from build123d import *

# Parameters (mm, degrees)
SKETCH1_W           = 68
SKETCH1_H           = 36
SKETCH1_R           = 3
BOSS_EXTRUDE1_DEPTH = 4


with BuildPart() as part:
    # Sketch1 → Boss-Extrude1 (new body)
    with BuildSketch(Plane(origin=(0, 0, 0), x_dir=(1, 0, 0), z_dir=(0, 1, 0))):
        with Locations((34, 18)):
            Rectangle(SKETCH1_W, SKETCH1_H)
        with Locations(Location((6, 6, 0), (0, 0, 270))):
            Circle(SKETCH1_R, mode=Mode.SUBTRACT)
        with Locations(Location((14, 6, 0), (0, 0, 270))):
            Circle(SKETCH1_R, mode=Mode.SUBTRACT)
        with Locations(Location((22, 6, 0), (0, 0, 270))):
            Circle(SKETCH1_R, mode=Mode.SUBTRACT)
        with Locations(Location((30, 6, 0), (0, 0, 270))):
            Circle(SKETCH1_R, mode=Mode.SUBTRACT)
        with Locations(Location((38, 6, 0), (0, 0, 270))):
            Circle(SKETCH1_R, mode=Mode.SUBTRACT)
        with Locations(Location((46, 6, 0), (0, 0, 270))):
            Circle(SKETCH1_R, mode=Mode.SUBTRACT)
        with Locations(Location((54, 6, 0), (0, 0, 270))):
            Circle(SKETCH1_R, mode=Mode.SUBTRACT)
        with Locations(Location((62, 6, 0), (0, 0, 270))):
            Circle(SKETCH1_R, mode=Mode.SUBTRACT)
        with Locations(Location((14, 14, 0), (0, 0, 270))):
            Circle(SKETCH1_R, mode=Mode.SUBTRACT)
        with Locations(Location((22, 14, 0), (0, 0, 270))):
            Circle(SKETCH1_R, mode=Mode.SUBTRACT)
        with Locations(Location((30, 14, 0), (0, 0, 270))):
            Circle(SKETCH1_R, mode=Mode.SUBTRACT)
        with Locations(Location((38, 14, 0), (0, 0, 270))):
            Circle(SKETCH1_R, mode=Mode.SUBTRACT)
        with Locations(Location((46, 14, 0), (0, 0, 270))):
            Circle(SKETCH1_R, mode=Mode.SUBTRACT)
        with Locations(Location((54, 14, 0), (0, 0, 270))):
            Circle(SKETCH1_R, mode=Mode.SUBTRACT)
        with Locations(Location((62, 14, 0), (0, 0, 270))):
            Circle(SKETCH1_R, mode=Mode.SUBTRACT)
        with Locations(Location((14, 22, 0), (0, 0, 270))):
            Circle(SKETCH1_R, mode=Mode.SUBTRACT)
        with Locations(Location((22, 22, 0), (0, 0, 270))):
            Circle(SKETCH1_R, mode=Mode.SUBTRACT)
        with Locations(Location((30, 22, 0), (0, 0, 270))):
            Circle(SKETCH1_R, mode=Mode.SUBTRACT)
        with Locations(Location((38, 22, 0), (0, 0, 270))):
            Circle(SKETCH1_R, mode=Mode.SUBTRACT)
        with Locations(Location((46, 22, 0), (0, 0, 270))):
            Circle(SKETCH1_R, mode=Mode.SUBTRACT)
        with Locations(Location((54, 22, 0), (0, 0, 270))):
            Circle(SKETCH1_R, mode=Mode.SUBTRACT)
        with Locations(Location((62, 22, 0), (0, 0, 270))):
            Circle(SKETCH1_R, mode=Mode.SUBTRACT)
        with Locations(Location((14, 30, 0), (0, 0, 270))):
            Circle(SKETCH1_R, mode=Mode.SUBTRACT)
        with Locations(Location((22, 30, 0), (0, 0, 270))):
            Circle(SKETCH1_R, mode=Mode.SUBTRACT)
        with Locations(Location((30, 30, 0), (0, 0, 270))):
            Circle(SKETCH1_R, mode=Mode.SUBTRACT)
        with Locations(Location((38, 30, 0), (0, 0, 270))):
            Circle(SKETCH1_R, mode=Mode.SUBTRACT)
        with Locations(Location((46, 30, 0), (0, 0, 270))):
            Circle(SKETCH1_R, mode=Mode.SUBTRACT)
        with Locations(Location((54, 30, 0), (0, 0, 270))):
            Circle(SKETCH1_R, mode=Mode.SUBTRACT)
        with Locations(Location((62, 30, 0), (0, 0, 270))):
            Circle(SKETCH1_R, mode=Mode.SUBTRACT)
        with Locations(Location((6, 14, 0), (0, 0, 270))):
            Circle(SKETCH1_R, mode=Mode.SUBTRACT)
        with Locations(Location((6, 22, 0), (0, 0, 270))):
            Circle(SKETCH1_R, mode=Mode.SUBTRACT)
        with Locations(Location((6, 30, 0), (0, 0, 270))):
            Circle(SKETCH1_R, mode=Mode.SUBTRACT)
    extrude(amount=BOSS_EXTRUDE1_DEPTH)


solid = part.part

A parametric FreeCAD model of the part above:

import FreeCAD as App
import Part
import Sketcher
from FreeCAD import Vector


def add_polygon(sketch, points):
    """Adds a closed chain of lines whose ends are joined by coincident constraints."""
    first, n = sketch.GeometryCount, len(points)
    for a, b in zip(points, points[1:] + points[:1]):
        sketch.addGeometry(Part.LineSegment(App.Vector(*a, 0), App.Vector(*b, 0)), False)
    for i in range(n):
        sketch.addConstraint(Sketcher.Constraint("Coincident", first + i, 2, first + (i + 1) % n, 1))

doc = App.newDocument("Part")
body = doc.addObject("PartDesign::Body", "Body")

# Sketch on XZ plane
sketch1 = body.newObject("Sketcher::SketchObject", "Sketch")
sketch1.AttachmentSupport = (doc.getObject("XZ_Plane"), [""])
sketch1.MapMode = "FlatFace"
add_polygon(sketch1, [(0, -36), (0, 0), (68, 0), (68, -36)])  # lines 0-3
sketch1.addGeometry(Part.Circle(Vector(6, -6, 0), Vector(0, 0, 1), 3), False)  # 4
sketch1.addGeometry(Part.Circle(Vector(14, -6, 0), Vector(0, 0, 1), 3), False)  # 5
sketch1.addGeometry(Part.Circle(Vector(22, -6, 0), Vector(0, 0, 1), 3), False)  # 6
sketch1.addGeometry(Part.Circle(Vector(30, -6, 0), Vector(0, 0, 1), 3), False)  # 7
sketch1.addGeometry(Part.Circle(Vector(6, -14, 0), Vector(0, 0, 1), 3), False)  # 8
sketch1.addGeometry(Part.Circle(Vector(14, -14, 0), Vector(0, 0, 1), 3), False)  # 9
sketch1.addGeometry(Part.Circle(Vector(22, -14, 0), Vector(0, 0, 1), 3), False)  # 10
sketch1.addGeometry(Part.Circle(Vector(30, -14, 0), Vector(0, 0, 1), 3), False)  # 11
sketch1.addGeometry(Part.Circle(Vector(38, -6, 0), Vector(0, 0, 1), 3), False)  # 12
sketch1.addGeometry(Part.Circle(Vector(46, -6, 0), Vector(0, 0, 1), 3), False)  # 13
sketch1.addGeometry(Part.Circle(Vector(54, -6, 0), Vector(0, 0, 1), 3), False)  # 14
sketch1.addGeometry(Part.Circle(Vector(62, -6, 0), Vector(0, 0, 1), 3), False)  # 15
sketch1.addGeometry(Part.Circle(Vector(38, -14, 0), Vector(0, 0, 1), 3), False)  # 16
sketch1.addGeometry(Part.Circle(Vector(46, -14, 0), Vector(0, 0, 1), 3), False)  # 17
sketch1.addGeometry(Part.Circle(Vector(54, -14, 0), Vector(0, 0, 1), 3), False)  # 18
sketch1.addGeometry(Part.Circle(Vector(62, -14, 0), Vector(0, 0, 1), 3), False)  # 19
sketch1.addGeometry(Part.Circle(Vector(6, -22, 0), Vector(0, 0, 1), 3), False)  # 20
sketch1.addGeometry(Part.Circle(Vector(14, -22, 0), Vector(0, 0, 1), 3), False)  # 21
sketch1.addGeometry(Part.Circle(Vector(22, -22, 0), Vector(0, 0, 1), 3), False)  # 22
sketch1.addGeometry(Part.Circle(Vector(30, -22, 0), Vector(0, 0, 1), 3), False)  # 23
sketch1.addGeometry(Part.Circle(Vector(6, -30, 0), Vector(0, 0, 1), 3), False)  # 24
sketch1.addGeometry(Part.Circle(Vector(14, -30, 0), Vector(0, 0, 1), 3), False)  # 25
sketch1.addGeometry(Part.Circle(Vector(22, -30, 0), Vector(0, 0, 1), 3), False)  # 26
sketch1.addGeometry(Part.Circle(Vector(30, -30, 0), Vector(0, 0, 1), 3), False)  # 27
sketch1.addGeometry(Part.Circle(Vector(38, -22, 0), Vector(0, 0, 1), 3), False)  # 28
sketch1.addGeometry(Part.Circle(Vector(46, -22, 0), Vector(0, 0, 1), 3), False)  # 29
sketch1.addGeometry(Part.Circle(Vector(54, -22, 0), Vector(0, 0, 1), 3), False)  # 30
sketch1.addGeometry(Part.Circle(Vector(62, -22, 0), Vector(0, 0, 1), 3), False)  # 31
sketch1.addGeometry(Part.Circle(Vector(38, -30, 0), Vector(0, 0, 1), 3), False)  # 32
sketch1.addGeometry(Part.Circle(Vector(46, -30, 0), Vector(0, 0, 1), 3), False)  # 33
sketch1.addGeometry(Part.Circle(Vector(54, -30, 0), Vector(0, 0, 1), 3), False)  # 34
sketch1.addGeometry(Part.Circle(Vector(62, -30, 0), Vector(0, 0, 1), 3), False)  # 35
sketch1.addConstraint(Sketcher.Constraint("Vertical", 0))
sketch1.addConstraint(Sketcher.Constraint("Horizontal", 1))
sketch1.addConstraint(Sketcher.Constraint("Vertical", 2))
sketch1.addConstraint(Sketcher.Constraint("Horizontal", 3))
sketch1.addConstraint(Sketcher.Constraint("Coincident", 0, 2, -1, 1))
sketch1.addConstraint(Sketcher.Constraint("Equal", 4, 5))
sketch1.addConstraint(Sketcher.Constraint("Equal", 5, 6))
sketch1.addConstraint(Sketcher.Constraint("Equal", 6, 7))
sketch1.addConstraint(Sketcher.Constraint("Equal", 7, 8))
sketch1.addConstraint(Sketcher.Constraint("Equal", 8, 9))
sketch1.addConstraint(Sketcher.Constraint("Equal", 9, 10))
sketch1.addConstraint(Sketcher.Constraint("Equal", 10, 11))
sketch1.addConstraint(Sketcher.Constraint("Equal", 11, 12))
sketch1.addConstraint(Sketcher.Constraint("Equal", 12, 13))
sketch1.addConstraint(Sketcher.Constraint("Equal", 13, 14))
sketch1.addConstraint(Sketcher.Constraint("Equal", 14, 15))
sketch1.addConstraint(Sketcher.Constraint("Equal", 15, 16))
sketch1.addConstraint(Sketcher.Constraint("Equal", 16, 17))
sketch1.addConstraint(Sketcher.Constraint("Equal", 17, 18))
sketch1.addConstraint(Sketcher.Constraint("Equal", 18, 19))
sketch1.addConstraint(Sketcher.Constraint("Equal", 19, 20))
sketch1.addConstraint(Sketcher.Constraint("Equal", 20, 21))
sketch1.addConstraint(Sketcher.Constraint("Equal", 21, 22))
sketch1.addConstraint(Sketcher.Constraint("Equal", 22, 23))
sketch1.addConstraint(Sketcher.Constraint("Equal", 23, 24))
sketch1.addConstraint(Sketcher.Constraint("Equal", 24, 25))
sketch1.addConstraint(Sketcher.Constraint("Equal", 25, 26))
sketch1.addConstraint(Sketcher.Constraint("Equal", 26, 27))
sketch1.addConstraint(Sketcher.Constraint("Equal", 27, 28))
sketch1.addConstraint(Sketcher.Constraint("Equal", 28, 29))
sketch1.addConstraint(Sketcher.Constraint("Equal", 29, 30))
sketch1.addConstraint(Sketcher.Constraint("Equal", 30, 31))
sketch1.addConstraint(Sketcher.Constraint("Equal", 31, 32))
sketch1.addConstraint(Sketcher.Constraint("Equal", 32, 33))
sketch1.addConstraint(Sketcher.Constraint("Equal", 33, 34))
sketch1.addConstraint(Sketcher.Constraint("Equal", 34, 35))
sketch1.addConstraint(Sketcher.Constraint("Horizontal", 4, 3, 5, 3))
sketch1.addConstraint(Sketcher.Constraint("Horizontal", 5, 3, 6, 3))
sketch1.addConstraint(Sketcher.Constraint("Horizontal", 6, 3, 7, 3))
sketch1.addConstraint(Sketcher.Constraint("Horizontal", 8, 3, 9, 3))
sketch1.addConstraint(Sketcher.Constraint("Horizontal", 9, 3, 10, 3))
sketch1.addConstraint(Sketcher.Constraint("Horizontal", 10, 3, 11, 3))
sketch1.addConstraint(Sketcher.Constraint("Horizontal", 7, 3, 12, 3))
sketch1.addConstraint(Sketcher.Constraint("Horizontal", 12, 3, 13, 3))
sketch1.addConstraint(Sketcher.Constraint("Horizontal", 13, 3, 14, 3))
sketch1.addConstraint(Sketcher.Constraint("Horizontal", 14, 3, 15, 3))
sketch1.addConstraint(Sketcher.Constraint("Horizontal", 11, 3, 16, 3))
sketch1.addConstraint(Sketcher.Constraint("Horizontal", 16, 3, 17, 3))
sketch1.addConstraint(Sketcher.Constraint("Horizontal", 17, 3, 18, 3))
sketch1.addConstraint(Sketcher.Constraint("Horizontal", 18, 3, 19, 3))
sketch1.addConstraint(Sketcher.Constraint("Horizontal", 20, 3, 21, 3))
sketch1.addConstraint(Sketcher.Constraint("Horizontal", 21, 3, 22, 3))
sketch1.addConstraint(Sketcher.Constraint("Horizontal", 22, 3, 23, 3))
sketch1.addConstraint(Sketcher.Constraint("Horizontal", 24, 3, 25, 3))
sketch1.addConstraint(Sketcher.Constraint("Horizontal", 25, 3, 26, 3))
sketch1.addConstraint(Sketcher.Constraint("Horizontal", 26, 3, 27, 3))
sketch1.addConstraint(Sketcher.Constraint("Horizontal", 23, 3, 28, 3))
sketch1.addConstraint(Sketcher.Constraint("Horizontal", 28, 3, 29, 3))
sketch1.addConstraint(Sketcher.Constraint("Horizontal", 29, 3, 30, 3))
sketch1.addConstraint(Sketcher.Constraint("Horizontal", 30, 3, 31, 3))
sketch1.addConstraint(Sketcher.Constraint("Horizontal", 27, 3, 32, 3))
sketch1.addConstraint(Sketcher.Constraint("Horizontal", 32, 3, 33, 3))
sketch1.addConstraint(Sketcher.Constraint("Horizontal", 33, 3, 34, 3))
sketch1.addConstraint(Sketcher.Constraint("Horizontal", 34, 3, 35, 3))
sketch1.addConstraint(Sketcher.Constraint("Vertical", 4, 3, 8, 3))
sketch1.addConstraint(Sketcher.Constraint("Vertical", 5, 3, 9, 3))
sketch1.addConstraint(Sketcher.Constraint("Vertical", 6, 3, 10, 3))
sketch1.addConstraint(Sketcher.Constraint("Vertical", 7, 3, 11, 3))
sketch1.addConstraint(Sketcher.Constraint("Vertical", 12, 3, 16, 3))
sketch1.addConstraint(Sketcher.Constraint("Vertical", 13, 3, 17, 3))
sketch1.addConstraint(Sketcher.Constraint("Vertical", 14, 3, 18, 3))
sketch1.addConstraint(Sketcher.Constraint("Vertical", 15, 3, 19, 3))
sketch1.addConstraint(Sketcher.Constraint("Vertical", 8, 3, 20, 3))
sketch1.addConstraint(Sketcher.Constraint("Vertical", 9, 3, 21, 3))
sketch1.addConstraint(Sketcher.Constraint("Vertical", 10, 3, 22, 3))
sketch1.addConstraint(Sketcher.Constraint("Vertical", 11, 3, 23, 3))
sketch1.addConstraint(Sketcher.Constraint("Vertical", 20, 3, 24, 3))
sketch1.addConstraint(Sketcher.Constraint("Vertical", 21, 3, 25, 3))
sketch1.addConstraint(Sketcher.Constraint("Vertical", 22, 3, 26, 3))
sketch1.addConstraint(Sketcher.Constraint("Vertical", 23, 3, 27, 3))
sketch1.addConstraint(Sketcher.Constraint("Vertical", 16, 3, 28, 3))
sketch1.addConstraint(Sketcher.Constraint("Vertical", 17, 3, 29, 3))
sketch1.addConstraint(Sketcher.Constraint("Vertical", 18, 3, 30, 3))
sketch1.addConstraint(Sketcher.Constraint("Vertical", 19, 3, 31, 3))
sketch1.addConstraint(Sketcher.Constraint("Vertical", 28, 3, 32, 3))
sketch1.addConstraint(Sketcher.Constraint("Vertical", 29, 3, 33, 3))
sketch1.addConstraint(Sketcher.Constraint("Vertical", 30, 3, 34, 3))
sketch1.addConstraint(Sketcher.Constraint("Vertical", 31, 3, 35, 3))
sketch1.addConstraint(Sketcher.Constraint("Diameter", 4, 6.0))
sketch1.addConstraint(Sketcher.Constraint("DistanceX", 1, 1, 1, 2, 68.0))
sketch1.addConstraint(Sketcher.Constraint("DistanceY", 0, 1, 0, 2, 36.0))
sketch1.addConstraint(Sketcher.Constraint("DistanceX", -1, 1, 4, 3, 6.0))
sketch1.addConstraint(Sketcher.Constraint("DistanceY", 4, 3, -1, 1, 6.0))
sketch1.addConstraint(Sketcher.Constraint("DistanceX", -1, 1, 5, 3, 14.0))
sketch1.addConstraint(Sketcher.Constraint("DistanceX", -1, 1, 6, 3, 22.0))
sketch1.addConstraint(Sketcher.Constraint("DistanceX", -1, 1, 7, 3, 30.0))
sketch1.addConstraint(Sketcher.Constraint("DistanceY", 8, 3, -1, 1, 14.0))
sketch1.addConstraint(Sketcher.Constraint("DistanceX", -1, 1, 12, 3, 38.0))
sketch1.addConstraint(Sketcher.Constraint("DistanceX", -1, 1, 13, 3, 46.0))
sketch1.addConstraint(Sketcher.Constraint("DistanceX", -1, 1, 14, 3, 54.0))
sketch1.addConstraint(Sketcher.Constraint("DistanceX", -1, 1, 15, 3, 62.0))
sketch1.addConstraint(Sketcher.Constraint("DistanceY", 20, 3, -1, 1, 22.0))
sketch1.addConstraint(Sketcher.Constraint("DistanceY", 24, 3, -1, 1, 30.0))
pad1 = body.newObject("PartDesign::Pad", "Pad")
pad1.Profile = sketch1
pad1.Length = 4
pad1.Reversed = True

doc.recompute()
